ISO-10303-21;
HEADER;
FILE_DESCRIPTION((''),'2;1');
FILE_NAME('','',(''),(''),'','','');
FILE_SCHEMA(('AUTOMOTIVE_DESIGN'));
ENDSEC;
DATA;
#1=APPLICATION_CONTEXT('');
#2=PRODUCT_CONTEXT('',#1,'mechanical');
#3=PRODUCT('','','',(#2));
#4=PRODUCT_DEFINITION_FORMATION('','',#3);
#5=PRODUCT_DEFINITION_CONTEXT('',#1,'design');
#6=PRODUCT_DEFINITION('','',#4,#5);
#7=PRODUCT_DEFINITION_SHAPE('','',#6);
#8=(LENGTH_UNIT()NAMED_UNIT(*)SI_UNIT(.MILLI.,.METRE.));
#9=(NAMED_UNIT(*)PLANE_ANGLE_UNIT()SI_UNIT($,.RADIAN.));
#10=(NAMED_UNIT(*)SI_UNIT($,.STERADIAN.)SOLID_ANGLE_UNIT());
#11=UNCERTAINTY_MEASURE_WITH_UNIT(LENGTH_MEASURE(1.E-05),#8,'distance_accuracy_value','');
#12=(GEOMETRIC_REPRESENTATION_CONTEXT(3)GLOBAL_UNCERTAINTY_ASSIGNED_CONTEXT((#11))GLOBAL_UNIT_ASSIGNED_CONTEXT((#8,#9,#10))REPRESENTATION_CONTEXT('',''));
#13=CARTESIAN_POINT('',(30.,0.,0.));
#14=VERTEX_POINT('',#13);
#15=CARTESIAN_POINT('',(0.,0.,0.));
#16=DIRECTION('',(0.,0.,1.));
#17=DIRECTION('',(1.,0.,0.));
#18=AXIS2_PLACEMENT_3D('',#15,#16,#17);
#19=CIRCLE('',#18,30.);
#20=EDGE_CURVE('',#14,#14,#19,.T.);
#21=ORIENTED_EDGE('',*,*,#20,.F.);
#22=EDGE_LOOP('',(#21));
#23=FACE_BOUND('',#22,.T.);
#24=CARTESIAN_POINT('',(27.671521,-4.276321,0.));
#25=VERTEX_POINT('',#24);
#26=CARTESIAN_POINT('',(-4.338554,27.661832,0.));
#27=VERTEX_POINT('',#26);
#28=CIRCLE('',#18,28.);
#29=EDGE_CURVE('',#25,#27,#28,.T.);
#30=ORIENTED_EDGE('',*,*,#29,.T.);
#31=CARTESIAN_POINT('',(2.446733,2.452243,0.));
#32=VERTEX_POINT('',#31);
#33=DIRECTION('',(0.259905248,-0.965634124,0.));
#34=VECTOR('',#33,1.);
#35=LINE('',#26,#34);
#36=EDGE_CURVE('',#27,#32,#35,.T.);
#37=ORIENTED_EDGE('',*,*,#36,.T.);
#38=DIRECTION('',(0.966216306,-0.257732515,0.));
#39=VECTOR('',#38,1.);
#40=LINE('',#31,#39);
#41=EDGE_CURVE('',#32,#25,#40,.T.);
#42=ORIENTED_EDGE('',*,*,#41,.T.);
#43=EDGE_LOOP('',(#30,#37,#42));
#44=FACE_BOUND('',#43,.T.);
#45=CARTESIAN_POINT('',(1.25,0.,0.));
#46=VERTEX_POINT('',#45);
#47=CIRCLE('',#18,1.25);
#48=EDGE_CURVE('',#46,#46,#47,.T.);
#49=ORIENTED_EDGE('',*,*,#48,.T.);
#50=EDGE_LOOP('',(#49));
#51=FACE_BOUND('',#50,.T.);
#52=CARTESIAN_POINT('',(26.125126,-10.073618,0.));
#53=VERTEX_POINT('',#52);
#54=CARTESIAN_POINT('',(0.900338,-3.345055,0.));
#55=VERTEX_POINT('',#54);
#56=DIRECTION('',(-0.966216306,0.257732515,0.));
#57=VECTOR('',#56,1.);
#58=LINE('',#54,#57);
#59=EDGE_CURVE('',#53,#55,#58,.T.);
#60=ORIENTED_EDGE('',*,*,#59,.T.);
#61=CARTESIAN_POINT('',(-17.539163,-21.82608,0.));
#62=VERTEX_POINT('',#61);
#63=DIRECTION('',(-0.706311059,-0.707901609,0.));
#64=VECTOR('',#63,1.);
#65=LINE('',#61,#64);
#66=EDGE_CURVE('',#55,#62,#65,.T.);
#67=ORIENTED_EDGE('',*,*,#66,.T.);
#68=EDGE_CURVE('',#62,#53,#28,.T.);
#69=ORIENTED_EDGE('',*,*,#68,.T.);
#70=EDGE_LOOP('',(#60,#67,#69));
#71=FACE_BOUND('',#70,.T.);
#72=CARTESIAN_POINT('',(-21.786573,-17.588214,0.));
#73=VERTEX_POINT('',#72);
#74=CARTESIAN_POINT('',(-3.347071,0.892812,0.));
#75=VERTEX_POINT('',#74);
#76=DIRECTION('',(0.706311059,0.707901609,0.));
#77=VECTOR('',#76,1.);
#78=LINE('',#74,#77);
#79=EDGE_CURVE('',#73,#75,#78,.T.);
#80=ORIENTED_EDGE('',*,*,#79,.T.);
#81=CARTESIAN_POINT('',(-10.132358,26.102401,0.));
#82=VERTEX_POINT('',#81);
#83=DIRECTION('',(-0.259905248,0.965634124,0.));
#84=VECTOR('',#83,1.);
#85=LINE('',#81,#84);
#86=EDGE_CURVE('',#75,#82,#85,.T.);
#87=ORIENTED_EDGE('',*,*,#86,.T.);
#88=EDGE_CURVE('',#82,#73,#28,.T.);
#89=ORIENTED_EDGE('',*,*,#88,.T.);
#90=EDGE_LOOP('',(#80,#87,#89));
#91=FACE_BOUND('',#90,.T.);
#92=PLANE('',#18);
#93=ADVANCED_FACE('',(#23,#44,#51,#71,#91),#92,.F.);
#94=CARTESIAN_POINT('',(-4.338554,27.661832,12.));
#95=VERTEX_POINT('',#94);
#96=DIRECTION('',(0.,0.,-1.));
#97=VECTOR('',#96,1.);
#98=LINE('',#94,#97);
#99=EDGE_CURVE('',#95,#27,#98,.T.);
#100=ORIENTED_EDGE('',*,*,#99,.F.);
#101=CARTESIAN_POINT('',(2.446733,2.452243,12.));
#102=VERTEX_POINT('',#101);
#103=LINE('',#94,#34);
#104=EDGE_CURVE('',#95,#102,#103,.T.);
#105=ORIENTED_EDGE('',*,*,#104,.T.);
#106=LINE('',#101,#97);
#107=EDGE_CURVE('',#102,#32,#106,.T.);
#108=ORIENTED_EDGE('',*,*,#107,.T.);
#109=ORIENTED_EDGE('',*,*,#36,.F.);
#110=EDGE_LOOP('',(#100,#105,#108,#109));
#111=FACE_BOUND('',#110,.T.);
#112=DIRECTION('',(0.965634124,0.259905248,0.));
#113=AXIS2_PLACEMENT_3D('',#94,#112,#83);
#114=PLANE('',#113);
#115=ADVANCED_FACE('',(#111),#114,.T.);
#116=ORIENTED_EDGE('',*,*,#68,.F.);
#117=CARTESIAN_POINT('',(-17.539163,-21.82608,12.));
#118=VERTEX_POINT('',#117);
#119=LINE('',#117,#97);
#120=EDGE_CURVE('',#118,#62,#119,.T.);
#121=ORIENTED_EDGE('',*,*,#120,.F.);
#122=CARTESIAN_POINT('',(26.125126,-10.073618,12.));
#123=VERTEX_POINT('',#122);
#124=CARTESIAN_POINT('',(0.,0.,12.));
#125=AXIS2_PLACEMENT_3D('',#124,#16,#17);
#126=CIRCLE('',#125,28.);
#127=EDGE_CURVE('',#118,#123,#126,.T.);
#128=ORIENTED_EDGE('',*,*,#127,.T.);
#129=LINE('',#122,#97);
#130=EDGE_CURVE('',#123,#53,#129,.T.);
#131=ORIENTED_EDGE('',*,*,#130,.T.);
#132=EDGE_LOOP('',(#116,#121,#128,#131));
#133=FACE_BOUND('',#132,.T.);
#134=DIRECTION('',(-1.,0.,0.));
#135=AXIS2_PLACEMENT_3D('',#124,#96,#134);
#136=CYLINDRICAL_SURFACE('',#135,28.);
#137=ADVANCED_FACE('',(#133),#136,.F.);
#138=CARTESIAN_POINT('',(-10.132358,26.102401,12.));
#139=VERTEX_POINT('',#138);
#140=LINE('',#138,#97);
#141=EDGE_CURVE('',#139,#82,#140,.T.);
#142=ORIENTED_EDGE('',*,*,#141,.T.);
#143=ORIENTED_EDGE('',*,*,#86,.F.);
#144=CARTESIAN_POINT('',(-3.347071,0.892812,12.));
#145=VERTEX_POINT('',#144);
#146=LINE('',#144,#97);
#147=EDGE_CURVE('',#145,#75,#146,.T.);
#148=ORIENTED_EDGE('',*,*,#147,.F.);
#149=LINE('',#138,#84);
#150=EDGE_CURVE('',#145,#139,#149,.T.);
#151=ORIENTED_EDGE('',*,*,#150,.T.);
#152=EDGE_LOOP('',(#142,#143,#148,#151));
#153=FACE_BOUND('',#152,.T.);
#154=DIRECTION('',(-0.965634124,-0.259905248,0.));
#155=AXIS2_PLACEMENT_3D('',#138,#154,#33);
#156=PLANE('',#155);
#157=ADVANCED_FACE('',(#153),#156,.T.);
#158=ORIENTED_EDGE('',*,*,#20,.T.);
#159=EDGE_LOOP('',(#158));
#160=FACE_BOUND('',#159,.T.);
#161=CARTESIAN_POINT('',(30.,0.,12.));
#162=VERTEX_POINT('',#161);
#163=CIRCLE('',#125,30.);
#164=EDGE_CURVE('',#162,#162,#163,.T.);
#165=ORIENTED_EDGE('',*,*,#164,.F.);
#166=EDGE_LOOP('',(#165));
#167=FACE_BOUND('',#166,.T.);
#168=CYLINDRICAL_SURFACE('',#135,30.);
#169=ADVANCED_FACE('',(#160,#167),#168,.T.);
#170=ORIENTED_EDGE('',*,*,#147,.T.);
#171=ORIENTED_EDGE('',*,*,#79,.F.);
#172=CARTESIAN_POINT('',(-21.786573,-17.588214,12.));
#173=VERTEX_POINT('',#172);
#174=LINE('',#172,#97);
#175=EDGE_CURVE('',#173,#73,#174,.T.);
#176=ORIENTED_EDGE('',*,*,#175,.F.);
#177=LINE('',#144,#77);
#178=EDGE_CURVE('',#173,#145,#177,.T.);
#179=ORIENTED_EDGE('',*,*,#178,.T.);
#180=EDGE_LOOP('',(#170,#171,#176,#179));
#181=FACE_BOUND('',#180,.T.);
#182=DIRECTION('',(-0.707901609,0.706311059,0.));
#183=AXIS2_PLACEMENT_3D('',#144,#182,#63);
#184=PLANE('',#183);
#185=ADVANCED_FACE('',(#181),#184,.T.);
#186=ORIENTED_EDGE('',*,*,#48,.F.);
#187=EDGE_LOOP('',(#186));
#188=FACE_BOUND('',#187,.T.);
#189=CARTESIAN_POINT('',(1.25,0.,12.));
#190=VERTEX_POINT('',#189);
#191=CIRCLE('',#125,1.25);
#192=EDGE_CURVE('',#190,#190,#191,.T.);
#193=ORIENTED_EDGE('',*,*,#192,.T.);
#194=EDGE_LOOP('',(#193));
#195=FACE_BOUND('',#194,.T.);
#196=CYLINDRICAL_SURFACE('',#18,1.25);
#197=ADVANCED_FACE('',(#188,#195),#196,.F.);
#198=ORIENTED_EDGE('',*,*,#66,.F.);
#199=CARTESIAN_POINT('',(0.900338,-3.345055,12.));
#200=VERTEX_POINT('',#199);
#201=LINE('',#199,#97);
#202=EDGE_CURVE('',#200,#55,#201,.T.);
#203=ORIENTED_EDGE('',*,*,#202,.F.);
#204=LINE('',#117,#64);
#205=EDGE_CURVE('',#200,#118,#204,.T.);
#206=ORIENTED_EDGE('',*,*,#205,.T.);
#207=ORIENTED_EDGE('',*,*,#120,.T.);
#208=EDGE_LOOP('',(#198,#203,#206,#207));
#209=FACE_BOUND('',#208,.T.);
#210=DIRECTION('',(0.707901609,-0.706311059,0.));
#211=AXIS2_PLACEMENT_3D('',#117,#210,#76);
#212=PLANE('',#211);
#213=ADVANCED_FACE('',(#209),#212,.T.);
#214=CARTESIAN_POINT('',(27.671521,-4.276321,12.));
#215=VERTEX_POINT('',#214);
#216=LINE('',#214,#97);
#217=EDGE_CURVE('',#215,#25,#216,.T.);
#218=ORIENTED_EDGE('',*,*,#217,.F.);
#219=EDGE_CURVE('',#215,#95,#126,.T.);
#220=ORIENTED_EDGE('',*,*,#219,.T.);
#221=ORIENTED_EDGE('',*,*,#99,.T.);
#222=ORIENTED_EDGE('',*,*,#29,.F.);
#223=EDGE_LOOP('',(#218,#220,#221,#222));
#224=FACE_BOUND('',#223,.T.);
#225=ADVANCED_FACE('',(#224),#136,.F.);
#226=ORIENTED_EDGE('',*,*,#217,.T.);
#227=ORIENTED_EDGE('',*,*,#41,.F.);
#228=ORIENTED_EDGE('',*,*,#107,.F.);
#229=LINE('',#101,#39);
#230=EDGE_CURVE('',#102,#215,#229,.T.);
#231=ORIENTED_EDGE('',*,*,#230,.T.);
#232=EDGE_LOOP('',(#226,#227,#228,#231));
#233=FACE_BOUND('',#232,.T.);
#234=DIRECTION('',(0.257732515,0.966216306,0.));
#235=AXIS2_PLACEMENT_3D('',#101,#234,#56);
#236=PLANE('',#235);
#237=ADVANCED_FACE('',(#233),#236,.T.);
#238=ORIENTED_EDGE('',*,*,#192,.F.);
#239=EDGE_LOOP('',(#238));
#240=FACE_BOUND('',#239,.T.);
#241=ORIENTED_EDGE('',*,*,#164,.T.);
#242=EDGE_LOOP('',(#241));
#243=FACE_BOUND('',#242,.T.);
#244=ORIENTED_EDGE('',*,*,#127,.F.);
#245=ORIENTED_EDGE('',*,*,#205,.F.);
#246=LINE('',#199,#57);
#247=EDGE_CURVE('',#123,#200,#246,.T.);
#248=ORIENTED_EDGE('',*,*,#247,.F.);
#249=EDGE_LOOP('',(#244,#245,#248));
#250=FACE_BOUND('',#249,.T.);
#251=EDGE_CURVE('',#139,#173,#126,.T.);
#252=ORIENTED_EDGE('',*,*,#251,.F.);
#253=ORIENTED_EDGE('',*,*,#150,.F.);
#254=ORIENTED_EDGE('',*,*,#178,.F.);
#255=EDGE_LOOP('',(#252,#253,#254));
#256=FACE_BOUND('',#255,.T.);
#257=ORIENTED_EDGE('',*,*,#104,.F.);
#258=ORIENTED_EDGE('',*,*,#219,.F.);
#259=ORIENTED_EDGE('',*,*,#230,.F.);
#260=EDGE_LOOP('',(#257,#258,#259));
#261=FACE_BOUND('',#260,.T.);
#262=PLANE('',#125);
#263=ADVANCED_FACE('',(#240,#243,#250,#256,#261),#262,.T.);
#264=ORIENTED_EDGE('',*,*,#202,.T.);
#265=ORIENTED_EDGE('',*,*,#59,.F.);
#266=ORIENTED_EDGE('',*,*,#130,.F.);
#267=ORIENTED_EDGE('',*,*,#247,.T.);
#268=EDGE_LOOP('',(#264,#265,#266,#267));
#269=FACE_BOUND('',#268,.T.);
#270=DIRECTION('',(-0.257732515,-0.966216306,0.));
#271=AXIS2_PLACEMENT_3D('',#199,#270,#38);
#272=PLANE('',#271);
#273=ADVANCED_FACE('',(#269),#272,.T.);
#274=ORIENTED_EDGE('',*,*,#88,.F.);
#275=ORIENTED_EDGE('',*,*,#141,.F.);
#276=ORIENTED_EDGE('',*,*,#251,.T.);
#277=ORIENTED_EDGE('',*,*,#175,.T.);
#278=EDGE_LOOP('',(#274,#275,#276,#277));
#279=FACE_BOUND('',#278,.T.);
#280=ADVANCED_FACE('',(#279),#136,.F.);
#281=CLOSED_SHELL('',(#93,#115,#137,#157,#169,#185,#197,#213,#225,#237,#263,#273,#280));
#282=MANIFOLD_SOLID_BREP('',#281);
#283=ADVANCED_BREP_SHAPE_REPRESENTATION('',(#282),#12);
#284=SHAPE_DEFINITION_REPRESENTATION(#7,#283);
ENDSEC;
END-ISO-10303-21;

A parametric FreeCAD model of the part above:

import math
import FreeCAD as App
import Part
import Sketcher

V = App.Vector

doc = App.newDocument("Part")
body = doc.addObject("PartDesign::Body", "Body")

sketch1 = doc.addObject("Sketcher::SketchObject", "Sketch")
body.addObject(sketch1)
sketch1.AttachmentSupport = (doc.XY_Plane, [""])
sketch1.MapMode = "FlatFace"
sketch1.addGeometry([
    Part.Circle(V(0, 0, 0), V(0, 0, 1), 30),
    Part.ArcOfCircle(Part.Circle(V(0, 0, 0), V(0, 0, 1), 28), math.radians(-129), math.radians(-21)),
    Part.LineSegment(V(-18, -22, 0), V(1, -3, 0)),
    Part.LineSegment(V(1, -3, 0), V(26, -10, 0)),
    Part.ArcOfCircle(Part.Circle(V(0, 0, 0), V(0, 0, 1), 28), math.radians(111), math.radians(219)),
    Part.LineSegment(V(-10, 26, 0), V(-3, 1, 0)),
    Part.LineSegment(V(-3, 1, 0), V(-22, -18, 0)),
    Part.LineSegment(V(2, 2, 0), V(-4, 28, 0)),
    Part.ArcOfCircle(Part.Circle(V(0, 0, 0), V(0, 0, 1), 28), math.radians(-9), math.radians(99)),
    Part.LineSegment(V(28, -4, 0), V(2, 2, 0)),
], False)
sketch1.addConstraint([
    Sketcher.Constraint("Coincident", 1, 1, 2, 1),
    Sketcher.Constraint("Coincident", 2, 2, 3, 1),
    Sketcher.Constraint("Coincident", 3, 2, 1, 2),
    Sketcher.Constraint("Coincident", 4, 1, 5, 1),
    Sketcher.Constraint("Coincident", 5, 2, 6, 1),
    Sketcher.Constraint("Coincident", 6, 2, 4, 2),
    Sketcher.Constraint("Coincident", 7, 2, 8, 2),
    Sketcher.Constraint("Coincident", 8, 1, 9, 1),
    Sketcher.Constraint("Coincident", 9, 2, 7, 1),
    Sketcher.Constraint("Coincident", 0, 3, -1, 1),
    Sketcher.Constraint("Coincident", 1, 3, -1, 1),
    Sketcher.Constraint("Coincident", 4, 3, -1, 1),
    Sketcher.Constraint("Coincident", 8, 3, -1, 1),
    Sketcher.Constraint("Equal", 1, 4),
    Sketcher.Constraint("Equal", 4, 8),
    Sketcher.Constraint("Parallel", 2, 6),
    Sketcher.Constraint("Parallel", 5, 7),
    Sketcher.Constraint("Parallel", 3, 9),
    Sketcher.Constraint("Equal", 2, 3),
    Sketcher.Constraint("Equal", 3, 5),
    Sketcher.Constraint("Equal", 5, 6),
    Sketcher.Constraint("Equal", 6, 7),
    Sketcher.Constraint("Equal", 7, 9),
    Sketcher.Constraint("Diameter", 0, 60.0),
    Sketcher.Constraint("Radius", 1, 28.0),
    Sketcher.Constraint("DistanceY", -1, 1, 4, 1, 26.102401),
    Sketcher.Constraint("DistanceX", 1, 1, 2, 2, 18.439501),
    Sketcher.Constraint("Distance", 2, 26.106771),
    Sketcher.Constraint("DistanceY", 1, 1, -1, 1, 21.82608),
])
pad1 = doc.addObject("PartDesign::Pad", "Pad")
body.addObject(pad1)
pad1.Profile = sketch1
pad1.Length = 12

sketch2 = doc.addObject("Sketcher::SketchObject", "Sketch001")
body.addObject(sketch2)
sketch2.AttachmentSupport = (doc.XY_Plane, [""])
sketch2.MapMode = "FlatFace"
sketch2.AttachmentOffset = App.Placement(V(0, 0, 12), App.Rotation())
sketch2.addGeometry(Part.Circle(V(0, 0, 0), V(0, 0, 1), 1.2), False)
sketch2.addConstraint([
    Sketcher.Constraint("Coincident", 0, 3, -1, 1),
    Sketcher.Constraint("Diameter", 0, 2.5),
])
pocket1 = doc.addObject("PartDesign::Pocket", "Pocket")
body.addObject(pocket1)
pocket1.Profile = sketch2
pocket1.Type = "ThroughAll"

doc.recompute()
